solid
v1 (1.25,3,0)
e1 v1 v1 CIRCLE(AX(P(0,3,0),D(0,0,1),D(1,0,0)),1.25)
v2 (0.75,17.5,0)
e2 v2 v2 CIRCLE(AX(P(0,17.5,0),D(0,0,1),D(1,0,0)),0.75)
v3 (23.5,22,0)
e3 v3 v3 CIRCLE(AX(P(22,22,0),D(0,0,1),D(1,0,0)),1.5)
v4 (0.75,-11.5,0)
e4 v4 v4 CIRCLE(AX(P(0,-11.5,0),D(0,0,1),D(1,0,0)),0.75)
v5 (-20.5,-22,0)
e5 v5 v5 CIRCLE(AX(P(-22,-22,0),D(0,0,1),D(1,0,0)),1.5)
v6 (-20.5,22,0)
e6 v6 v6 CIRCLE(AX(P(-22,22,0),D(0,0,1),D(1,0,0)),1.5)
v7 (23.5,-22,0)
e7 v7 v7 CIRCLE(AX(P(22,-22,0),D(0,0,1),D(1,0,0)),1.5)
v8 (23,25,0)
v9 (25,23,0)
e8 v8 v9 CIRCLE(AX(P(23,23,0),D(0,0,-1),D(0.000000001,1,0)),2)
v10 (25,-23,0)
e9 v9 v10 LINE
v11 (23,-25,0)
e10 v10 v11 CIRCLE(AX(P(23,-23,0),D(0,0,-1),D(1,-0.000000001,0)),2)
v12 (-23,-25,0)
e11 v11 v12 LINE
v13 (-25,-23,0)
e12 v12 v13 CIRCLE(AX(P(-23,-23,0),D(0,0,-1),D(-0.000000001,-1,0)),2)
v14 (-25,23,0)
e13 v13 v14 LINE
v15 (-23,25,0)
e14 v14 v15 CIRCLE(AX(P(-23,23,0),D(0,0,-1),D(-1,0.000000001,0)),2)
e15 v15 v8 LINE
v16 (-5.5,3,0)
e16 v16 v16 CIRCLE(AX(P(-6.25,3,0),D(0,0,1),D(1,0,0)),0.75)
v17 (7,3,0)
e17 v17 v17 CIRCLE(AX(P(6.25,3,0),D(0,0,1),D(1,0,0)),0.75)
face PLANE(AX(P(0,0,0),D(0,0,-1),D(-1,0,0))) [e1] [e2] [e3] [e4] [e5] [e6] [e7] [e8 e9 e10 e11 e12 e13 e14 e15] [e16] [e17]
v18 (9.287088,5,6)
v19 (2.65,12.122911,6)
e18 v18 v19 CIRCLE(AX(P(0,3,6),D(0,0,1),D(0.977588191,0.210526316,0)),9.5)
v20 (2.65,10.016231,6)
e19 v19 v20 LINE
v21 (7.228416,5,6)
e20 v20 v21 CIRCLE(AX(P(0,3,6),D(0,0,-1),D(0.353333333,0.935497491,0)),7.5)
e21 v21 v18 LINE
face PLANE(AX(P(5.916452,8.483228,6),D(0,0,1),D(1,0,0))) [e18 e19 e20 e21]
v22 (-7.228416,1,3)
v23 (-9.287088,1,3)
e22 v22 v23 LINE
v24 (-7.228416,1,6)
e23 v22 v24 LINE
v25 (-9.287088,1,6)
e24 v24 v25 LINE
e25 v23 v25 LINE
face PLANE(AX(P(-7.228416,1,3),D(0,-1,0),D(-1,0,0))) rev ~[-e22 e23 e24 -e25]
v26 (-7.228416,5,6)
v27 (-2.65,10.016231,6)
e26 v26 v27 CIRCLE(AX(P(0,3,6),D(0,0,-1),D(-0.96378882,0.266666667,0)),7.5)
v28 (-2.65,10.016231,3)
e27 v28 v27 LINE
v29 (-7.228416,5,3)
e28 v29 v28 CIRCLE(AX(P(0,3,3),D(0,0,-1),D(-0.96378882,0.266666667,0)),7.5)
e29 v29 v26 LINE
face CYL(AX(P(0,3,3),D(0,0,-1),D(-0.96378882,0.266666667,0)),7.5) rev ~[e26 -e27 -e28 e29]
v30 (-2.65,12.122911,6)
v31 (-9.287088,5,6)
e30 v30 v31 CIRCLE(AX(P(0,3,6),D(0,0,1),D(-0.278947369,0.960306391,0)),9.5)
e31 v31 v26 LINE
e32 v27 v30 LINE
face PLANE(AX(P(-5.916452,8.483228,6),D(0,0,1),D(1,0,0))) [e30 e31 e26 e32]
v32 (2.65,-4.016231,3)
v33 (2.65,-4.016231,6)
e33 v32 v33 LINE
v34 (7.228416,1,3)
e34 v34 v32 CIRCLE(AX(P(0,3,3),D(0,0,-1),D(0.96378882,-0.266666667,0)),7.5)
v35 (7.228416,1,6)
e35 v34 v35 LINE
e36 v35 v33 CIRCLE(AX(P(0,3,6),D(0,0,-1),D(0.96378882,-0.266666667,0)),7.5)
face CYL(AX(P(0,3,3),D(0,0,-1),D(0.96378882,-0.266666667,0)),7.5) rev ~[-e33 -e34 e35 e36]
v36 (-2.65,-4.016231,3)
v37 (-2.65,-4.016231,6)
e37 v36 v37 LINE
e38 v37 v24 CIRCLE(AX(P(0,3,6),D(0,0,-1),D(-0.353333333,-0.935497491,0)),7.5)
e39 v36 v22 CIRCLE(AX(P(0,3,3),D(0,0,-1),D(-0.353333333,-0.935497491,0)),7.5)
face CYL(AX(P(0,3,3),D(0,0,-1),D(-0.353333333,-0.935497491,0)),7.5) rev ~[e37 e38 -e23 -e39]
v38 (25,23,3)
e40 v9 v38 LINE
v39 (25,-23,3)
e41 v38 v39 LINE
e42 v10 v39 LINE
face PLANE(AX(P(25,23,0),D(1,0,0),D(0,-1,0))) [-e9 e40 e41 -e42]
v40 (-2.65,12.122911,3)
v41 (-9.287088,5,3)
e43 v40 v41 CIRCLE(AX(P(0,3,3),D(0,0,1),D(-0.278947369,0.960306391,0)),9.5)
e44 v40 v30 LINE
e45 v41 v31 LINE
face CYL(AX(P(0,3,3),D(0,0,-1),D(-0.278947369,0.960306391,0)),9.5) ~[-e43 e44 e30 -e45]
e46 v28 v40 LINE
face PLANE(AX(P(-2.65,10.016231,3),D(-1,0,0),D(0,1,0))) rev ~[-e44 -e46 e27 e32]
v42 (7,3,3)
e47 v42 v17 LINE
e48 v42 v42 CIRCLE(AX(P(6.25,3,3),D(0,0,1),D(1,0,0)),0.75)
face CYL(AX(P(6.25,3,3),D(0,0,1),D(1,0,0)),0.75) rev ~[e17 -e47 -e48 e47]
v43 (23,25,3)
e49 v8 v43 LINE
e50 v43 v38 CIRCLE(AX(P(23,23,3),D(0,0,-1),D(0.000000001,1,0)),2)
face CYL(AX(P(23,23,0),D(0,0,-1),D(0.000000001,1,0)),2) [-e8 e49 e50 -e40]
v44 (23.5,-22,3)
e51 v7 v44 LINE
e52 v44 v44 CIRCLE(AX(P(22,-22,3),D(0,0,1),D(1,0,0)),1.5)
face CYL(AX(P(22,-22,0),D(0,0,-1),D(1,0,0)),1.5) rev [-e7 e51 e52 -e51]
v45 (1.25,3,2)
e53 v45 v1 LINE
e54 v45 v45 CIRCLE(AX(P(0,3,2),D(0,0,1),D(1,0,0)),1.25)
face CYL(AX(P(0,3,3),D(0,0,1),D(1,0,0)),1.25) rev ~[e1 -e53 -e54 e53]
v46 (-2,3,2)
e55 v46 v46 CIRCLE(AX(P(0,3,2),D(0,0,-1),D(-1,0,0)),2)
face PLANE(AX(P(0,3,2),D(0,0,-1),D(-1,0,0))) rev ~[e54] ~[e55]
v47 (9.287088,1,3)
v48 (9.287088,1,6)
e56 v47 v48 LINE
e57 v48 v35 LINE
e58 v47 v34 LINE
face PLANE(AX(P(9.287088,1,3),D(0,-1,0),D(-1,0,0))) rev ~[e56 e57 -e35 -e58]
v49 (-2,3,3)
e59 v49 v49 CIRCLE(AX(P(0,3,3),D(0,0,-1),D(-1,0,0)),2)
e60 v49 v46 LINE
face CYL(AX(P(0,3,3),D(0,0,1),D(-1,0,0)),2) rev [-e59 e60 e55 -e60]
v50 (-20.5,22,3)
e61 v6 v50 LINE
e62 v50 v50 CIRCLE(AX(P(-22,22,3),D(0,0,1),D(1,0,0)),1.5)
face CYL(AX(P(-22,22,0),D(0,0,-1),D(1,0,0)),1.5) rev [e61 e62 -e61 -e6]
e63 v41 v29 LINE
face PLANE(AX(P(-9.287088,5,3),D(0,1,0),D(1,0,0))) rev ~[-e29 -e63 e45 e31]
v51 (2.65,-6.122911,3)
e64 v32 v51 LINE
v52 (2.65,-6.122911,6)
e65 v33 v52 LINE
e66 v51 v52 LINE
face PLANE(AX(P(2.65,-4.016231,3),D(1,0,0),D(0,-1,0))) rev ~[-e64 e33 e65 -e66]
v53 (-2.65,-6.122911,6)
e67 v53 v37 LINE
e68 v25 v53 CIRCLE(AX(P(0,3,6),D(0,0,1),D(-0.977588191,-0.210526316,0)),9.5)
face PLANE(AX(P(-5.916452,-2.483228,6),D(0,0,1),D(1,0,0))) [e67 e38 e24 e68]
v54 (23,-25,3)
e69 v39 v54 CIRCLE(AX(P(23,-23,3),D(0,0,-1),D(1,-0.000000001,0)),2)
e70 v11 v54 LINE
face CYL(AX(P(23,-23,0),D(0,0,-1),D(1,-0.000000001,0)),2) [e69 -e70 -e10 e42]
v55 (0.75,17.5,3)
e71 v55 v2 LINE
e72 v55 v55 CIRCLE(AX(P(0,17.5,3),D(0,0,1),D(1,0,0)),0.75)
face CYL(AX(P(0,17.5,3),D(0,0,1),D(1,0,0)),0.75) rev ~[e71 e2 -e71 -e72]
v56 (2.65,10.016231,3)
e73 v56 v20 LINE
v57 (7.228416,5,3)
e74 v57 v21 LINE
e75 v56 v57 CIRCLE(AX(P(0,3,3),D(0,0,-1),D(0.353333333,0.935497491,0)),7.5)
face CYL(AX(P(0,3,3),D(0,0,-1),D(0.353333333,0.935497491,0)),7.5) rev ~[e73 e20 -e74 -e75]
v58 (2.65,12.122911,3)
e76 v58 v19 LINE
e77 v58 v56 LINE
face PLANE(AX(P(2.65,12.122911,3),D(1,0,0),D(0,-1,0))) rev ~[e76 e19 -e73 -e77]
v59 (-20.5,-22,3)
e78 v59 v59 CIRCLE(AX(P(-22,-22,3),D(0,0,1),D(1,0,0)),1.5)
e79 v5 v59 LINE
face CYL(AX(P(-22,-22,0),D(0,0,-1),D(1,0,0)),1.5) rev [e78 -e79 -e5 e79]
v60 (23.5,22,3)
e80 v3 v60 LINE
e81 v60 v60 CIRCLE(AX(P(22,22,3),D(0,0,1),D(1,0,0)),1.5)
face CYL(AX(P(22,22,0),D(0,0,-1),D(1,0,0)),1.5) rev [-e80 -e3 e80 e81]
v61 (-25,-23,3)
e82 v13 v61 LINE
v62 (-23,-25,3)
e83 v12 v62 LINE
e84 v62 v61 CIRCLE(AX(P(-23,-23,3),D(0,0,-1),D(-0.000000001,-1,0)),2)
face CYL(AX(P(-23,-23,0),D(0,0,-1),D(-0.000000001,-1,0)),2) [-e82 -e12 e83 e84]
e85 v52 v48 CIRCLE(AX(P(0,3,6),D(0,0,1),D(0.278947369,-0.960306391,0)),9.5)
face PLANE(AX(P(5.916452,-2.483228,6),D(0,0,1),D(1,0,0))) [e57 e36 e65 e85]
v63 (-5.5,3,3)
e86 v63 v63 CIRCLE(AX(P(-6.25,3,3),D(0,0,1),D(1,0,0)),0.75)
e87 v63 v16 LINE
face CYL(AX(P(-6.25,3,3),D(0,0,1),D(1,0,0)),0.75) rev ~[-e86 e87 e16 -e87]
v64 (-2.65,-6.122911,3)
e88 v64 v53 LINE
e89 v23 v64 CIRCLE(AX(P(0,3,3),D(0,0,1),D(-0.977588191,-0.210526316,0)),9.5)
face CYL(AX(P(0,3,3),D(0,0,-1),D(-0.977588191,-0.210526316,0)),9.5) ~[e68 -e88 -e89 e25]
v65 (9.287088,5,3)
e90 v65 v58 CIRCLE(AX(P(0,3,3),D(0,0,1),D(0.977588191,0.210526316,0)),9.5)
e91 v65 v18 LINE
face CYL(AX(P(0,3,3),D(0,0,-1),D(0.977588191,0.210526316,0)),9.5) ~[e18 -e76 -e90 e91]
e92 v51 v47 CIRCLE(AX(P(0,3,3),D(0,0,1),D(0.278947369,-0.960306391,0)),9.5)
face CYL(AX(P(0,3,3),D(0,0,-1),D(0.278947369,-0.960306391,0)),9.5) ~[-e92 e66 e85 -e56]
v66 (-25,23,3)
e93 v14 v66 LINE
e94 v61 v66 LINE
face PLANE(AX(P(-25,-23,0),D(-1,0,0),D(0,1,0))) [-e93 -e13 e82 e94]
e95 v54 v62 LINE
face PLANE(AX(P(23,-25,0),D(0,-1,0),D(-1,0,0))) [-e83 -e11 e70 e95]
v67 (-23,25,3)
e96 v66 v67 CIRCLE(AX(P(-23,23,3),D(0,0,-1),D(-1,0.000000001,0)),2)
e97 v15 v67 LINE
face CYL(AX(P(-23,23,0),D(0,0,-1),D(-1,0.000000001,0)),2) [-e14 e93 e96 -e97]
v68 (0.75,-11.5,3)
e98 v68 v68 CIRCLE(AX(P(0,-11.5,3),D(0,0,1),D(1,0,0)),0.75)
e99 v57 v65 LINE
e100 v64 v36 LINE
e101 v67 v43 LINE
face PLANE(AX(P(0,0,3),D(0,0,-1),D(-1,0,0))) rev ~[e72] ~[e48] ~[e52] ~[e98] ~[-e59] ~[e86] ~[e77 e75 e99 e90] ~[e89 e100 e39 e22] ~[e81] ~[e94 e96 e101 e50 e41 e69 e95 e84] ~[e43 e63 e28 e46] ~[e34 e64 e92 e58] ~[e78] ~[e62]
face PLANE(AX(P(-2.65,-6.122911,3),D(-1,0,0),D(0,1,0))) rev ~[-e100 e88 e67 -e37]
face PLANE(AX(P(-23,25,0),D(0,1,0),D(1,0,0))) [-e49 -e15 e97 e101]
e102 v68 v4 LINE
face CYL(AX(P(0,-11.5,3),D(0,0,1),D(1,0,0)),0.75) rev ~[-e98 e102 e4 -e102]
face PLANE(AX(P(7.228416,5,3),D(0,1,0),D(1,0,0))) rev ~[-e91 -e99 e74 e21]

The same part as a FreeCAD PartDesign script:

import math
import FreeCAD as App
import Part
import Sketcher

V = App.Vector
Q = App.Units.Quantity

doc = App.newDocument("Part")
body = doc.addObject("PartDesign::Body", "Body")

sketch1 = body.newObject("Sketcher::SketchObject", "Sketch")
sketch1.AttachmentSupport = (doc.getObject("XY_Plane"), [""])
sketch1.MapMode = "FlatFace"
sketch1.addGeometry([
    Part.LineSegment(V(23, 25, 0), V(-23, 25, 0)),
    Part.ArcOfCircle(Part.Circle(V(-23, 23, 0), V(0, 0, 1), 2), math.radians(90), math.radians(180)),
    Part.LineSegment(V(-25, 23, 0), V(-25, -23, 0)),
    Part.ArcOfCircle(Part.Circle(V(-23, -23, 0), V(0, 0, 1), 2), math.radians(-180), math.radians(-90)),
    Part.LineSegment(V(-23, -25, 0), V(23, -25, 0)),
    Part.ArcOfCircle(Part.Circle(V(23, -23, 0), V(0, 0, 1), 2), math.radians(-90), math.radians(0)),
    Part.LineSegment(V(25, -23, 0), V(25, 23, 0)),
    Part.ArcOfCircle(Part.Circle(V(23, 23, 0), V(0, 0, 1), 2), math.radians(0), math.radians(90)),
    Part.Circle(V(22, -22, 0), V(0, 0, 1), 1.5),
    Part.Circle(V(-22, -22, 0), V(0, 0, 1), 1.5),
    Part.Circle(V(22, 22, 0), V(0, 0, 1), 1.5),
    Part.Circle(V(-22, 22, 0), V(0, 0, 1), 1.5),
], False)
sketch1.addConstraint([
    Sketcher.Constraint("Tangent", 0, 2, 1, 1),
    Sketcher.Constraint("Tangent", 1, 2, 2, 1),
    Sketcher.Constraint("Tangent", 2, 2, 3, 1),
    Sketcher.Constraint("Tangent", 3, 2, 4, 1),
    Sketcher.Constraint("Tangent", 4, 2, 5, 1),
    Sketcher.Constraint("Tangent", 5, 2, 6, 1),
    Sketcher.Constraint("Tangent", 6, 2, 7, 1),
    Sketcher.Constraint("Tangent", 7, 2, 0, 1),
    Sketcher.Constraint("Horizontal", 0),
    Sketcher.Constraint("Vertical", 2),
    Sketcher.Constraint("Horizontal", 4),
    Sketcher.Constraint("Vertical", 6),
    Sketcher.Constraint("Equal", 1, 3),
    Sketcher.Constraint("Equal", 3, 5),
    Sketcher.Constraint("Equal", 5, 7),
    Sketcher.Constraint("Equal", 8, 9),
    Sketcher.Constraint("Equal", 9, 10),
    Sketcher.Constraint("Equal", 10, 11),
    Sketcher.Constraint("Symmetric", 1, 3, 5, 3, -1, 1),
    Sketcher.Constraint("Symmetric", 9, 3, 10, 3, -1, 1),
    Sketcher.Constraint("Symmetric", 8, 3, 11, 3, -1, 1),
    Sketcher.Constraint("Symmetric", 8, 3, 9, 3, -2),
    Sketcher.Constraint("Equal", 4, 2),
    Sketcher.Constraint("Diameter", 8, Q("3 mm")),
    Sketcher.Constraint("Radius", 1, Q("2 mm")),
    Sketcher.Constraint("DistanceX", 0, 2, 0, 1, Q("46 mm")),
    Sketcher.Constraint("DistanceX", -1, 1, 8, 3, Q("22 mm")),
    Sketcher.Constraint("DistanceY", 8, 3, -1, 1, Q("22 mm")),
])
pad1 = body.newObject("PartDesign::Pad", "Pad")
pad1.Profile = sketch1
pad1.Length = 3

sketch2 = body.newObject("Sketcher::SketchObject", "Sketch001")
sketch2.AttachmentSupport = (doc.getObject("XY_Plane"), [""])
sketch2.MapMode = "FlatFace"
sketch2.AttachmentOffset = App.Placement(V(0, 0, 3), App.Rotation())
sketch2.addGeometry([
    Part.ArcOfCircle(Part.Circle(V(0, 3, 0), V(0, 0, 1), 9.5), math.radians(-73.80261), math.radians(-12.153197)),
    Part.LineSegment(V(9.287088, 1, 0), V(7.228416, 1, 0)),
    Part.ArcOfCircle(Part.Circle(V(0, 3, 0), V(0, 0, 1), 7.5), math.radians(-69.308667), math.radians(-15.46601)),
    Part.LineSegment(V(2.65, -4.016231, 0), V(2.65, -6.122911, 0)),
    Part.LineSegment(V(-7.228416, 1, 0), V(-9.287088, 1, 0)),
    Part.ArcOfCircle(Part.Circle(V(0, 3, 0), V(0, 0, 1), 9.5), math.radians(-167.846803), math.radians(-106.19739)),
    Part.LineSegment(V(-2.65, -6.122911, 0), V(-2.65, -4.016231, 0)),
    Part.ArcOfCircle(Part.Circle(V(0, 3, 0), V(0, 0, 1), 7.5), math.radians(-164.53399), math.radians(-110.691333)),
    Part.LineSegment(V(-2.65, 10.016231, 0), V(-2.65, 12.122911, 0)),
    Part.ArcOfCircle(Part.Circle(V(0, 3, 0), V(0, 0, 1), 9.5), math.radians(106.19739), math.radians(167.846803)),
    Part.LineSegment(V(-9.287088, 5, 0), V(-7.228416, 5, 0)),
    Part.ArcOfCircle(Part.Circle(V(0, 3, 0), V(0, 0, 1), 7.5), math.radians(110.691333), math.radians(164.53399)),
    Part.ArcOfCircle(Part.Circle(V(0, 3, 0), V(0, 0, 1), 9.5), math.radians(12.153197), math.radians(73.80261)),
    Part.LineSegment(V(2.65, 12.122911, 0), V(2.65, 10.016231, 0)),
    Part.ArcOfCircle(Part.Circle(V(0, 3, 0), V(0, 0, 1), 7.5), math.radians(15.46601), math.radians(69.308667)),
    Part.LineSegment(V(7.228416, 5, 0), V(9.287088, 5, 0)),
], False)
sketch2.addConstraint([
    Sketcher.Constraint("Coincident", 0, 2, 1, 1),
    Sketcher.Constraint("Coincident", 1, 2, 2, 2),
    Sketcher.Constraint("Coincident", 2, 1, 3, 1),
    Sketcher.Constraint("Coincident", 3, 2, 0, 1),
    Sketcher.Constraint("Coincident", 4, 2, 5, 1),
    Sketcher.Constraint("Coincident", 5, 2, 6, 1),
    Sketcher.Constraint("Coincident", 6, 2, 7, 2),
    Sketcher.Constraint("Coincident", 7, 1, 4, 1),
    Sketcher.Constraint("Coincident", 8, 2, 9, 1),
    Sketcher.Constraint("Coincident", 9, 2, 10, 1),
    Sketcher.Constraint("Coincident", 10, 2, 11, 2),
    Sketcher.Constraint("Coincident", 11, 1, 8, 1),
    Sketcher.Constraint("Coincident", 12, 2, 13, 1),
    Sketcher.Constraint("Coincident", 13, 2, 14, 2),
    Sketcher.Constraint("Coincident", 14, 1, 15, 1),
    Sketcher.Constraint("Coincident", 15, 2, 12, 1),
    Sketcher.Constraint("Horizontal", 1),
    Sketcher.Constraint("Vertical", 3),
    Sketcher.Constraint("Horizontal", 4),
    Sketcher.Constraint("Vertical", 6),
    Sketcher.Constraint("Vertical", 8),
    Sketcher.Constraint("Horizontal", 10),
    Sketcher.Constraint("Vertical", 13),
    Sketcher.Constraint("Horizontal", 15),
    Sketcher.Constraint("Coincident", 2, 3, 0, 3),
    Sketcher.Constraint("Coincident", 5, 3, 0, 3),
    Sketcher.Constraint("Coincident", 7, 3, 0, 3),
    Sketcher.Constraint("Coincident", 9, 3, 0, 3),
    Sketcher.Constraint("Coincident", 11, 3, 0, 3),
    Sketcher.Constraint("Coincident", 12, 3, 0, 3),
    Sketcher.Constraint("Coincident", 14, 3, 0, 3),
    Sketcher.Constraint("Equal", 0, 5),
    Sketcher.Constraint("Equal", 2, 7),
    Sketcher.Constraint("Equal", 5, 9),
    Sketcher.Constraint("Equal", 7, 11),
    Sketcher.Constraint("Equal", 9, 12),
    Sketcher.Constraint("Equal", 11, 14),
    Sketcher.Constraint("Symmetric", 0, 2, 4, 2, -2),
    Sketcher.Constraint("Horizontal", 3, 2, 5, 2),
    Sketcher.Constraint("Horizontal", 8, 2, 12, 2),
    Sketcher.Constraint("Horizontal", 10, 2, 14, 1),
    Sketcher.Constraint("Vertical", 6, 2, 8, 2),
    Sketcher.Constraint("Vertical", 4, 2, 9, 2),
    Sketcher.Constraint("Radius", 0, Q("9.5 mm")),
    Sketcher.Constraint("Radius", 2, Q("7.5 mm")),
    Sketcher.Constraint("DistanceY", -1, 1, 0, 3, Q("3 mm")),
    Sketcher.Constraint("DistanceY", -1, 1, 0, 2, Q("1 mm")),
    Sketcher.Constraint("DistanceX", 5, 2, 3, 2, Q("5.3 mm")),
])
pad2 = body.newObject("PartDesign::Pad", "Pad001")
pad2.Profile = sketch2
pad2.Length = 3

sketch3 = body.newObject("Sketcher::SketchObject", "Sketch002")
sketch3.AttachmentSupport = (doc.getObject("XY_Plane"), [""])
sketch3.MapMode = "FlatFace"
sketch3.AttachmentOffset = App.Placement(V(0, 0, 3), App.Rotation())
sketch3.addGeometry(Part.Circle(V(0, 3, 0), V(0, 0, 1), 1.25), False)
sketch3.addConstraint([
    Sketcher.Constraint("PointOnObject", 0, 3, -2),
    Sketcher.Constraint("Diameter", 0, Q("2.5 mm")),
    Sketcher.Constraint("DistanceY", -1, 1, 0, 3, Q("3 mm")),
])
pocket1 = body.newObject("PartDesign::Pocket", "Pocket")
pocket1.Profile = sketch3
pocket1.Length = 3

sketch4 = body.newObject("Sketcher::SketchObject", "Sketch003")
sketch4.AttachmentSupport = (doc.getObject("XY_Plane"), [""])
sketch4.MapMode = "FlatFace"
sketch4.AttachmentOffset = App.Placement(V(0, 0, 3), App.Rotation())
sketch4.addGeometry([
    Part.Circle(V(0, 17.5, 0), V(0, 0, 1), 0.75),
    Part.Circle(V(0, -11.5, 0), V(0, 0, 1), 0.75),
    Part.Circle(V(-6.25, 3, 0), V(0, 0, 1), 0.75),
    Part.Circle(V(6.25, 3, 0), V(0, 0, 1), 0.75),
], False)
sketch4.addConstraint([
    Sketcher.Constraint("Equal", 0, 1),
    Sketcher.Constraint("Equal", 1, 2),
    Sketcher.Constraint("Equal", 2, 3),
    Sketcher.Constraint("Symmetric", 2, 3, 3, 3, -2),
    Sketcher.Constraint("PointOnObject", 0, 3, -2),
    Sketcher.Constraint("PointOnObject", 1, 3, -2),
    Sketcher.Constraint("Diameter", 0, Q("1.5 mm")),
    Sketcher.Constraint("DistanceY", -1, 1, 2, 3, Q("3 mm")),
    Sketcher.Constraint("DistanceY", 1, 3, 0, 3, Q("29 mm")),
    Sketcher.Constraint("DistanceY", -1, 1, 0, 3, Q("17.5 mm")),
    Sketcher.Constraint("DistanceX", 2, 3, 3, 3, Q("12.5 mm")),
])
pocket2 = body.newObject("PartDesign::Pocket", "Pocket001")
pocket2.Profile = sketch4
pocket2.Length = 10

sketch5 = body.newObject("Sketcher::SketchObject", "Sketch004")
sketch5.AttachmentSupport = (doc.getObject("XY_Plane"), [""])
sketch5.MapMode = "FlatFace"
sketch5.AttachmentOffset = App.Placement(V(0, 0, 3), App.Rotation())
sketch5.addGeometry(Part.Circle(V(0, 3, 0), V(0, 0, 1), 2), False)
sketch5.addConstraint([
    Sketcher.Constraint("PointOnObject", 0, 3, -2),
    Sketcher.Constraint("Diameter", 0, Q("4 mm")),
    Sketcher.Constraint("DistanceY", -1, 1, 0, 3, Q("3 mm")),
])
pocket3 = body.newObject("PartDesign::Pocket", "Pocket002")
pocket3.Profile = sketch5
pocket3.Length = 1

doc.recompute()
